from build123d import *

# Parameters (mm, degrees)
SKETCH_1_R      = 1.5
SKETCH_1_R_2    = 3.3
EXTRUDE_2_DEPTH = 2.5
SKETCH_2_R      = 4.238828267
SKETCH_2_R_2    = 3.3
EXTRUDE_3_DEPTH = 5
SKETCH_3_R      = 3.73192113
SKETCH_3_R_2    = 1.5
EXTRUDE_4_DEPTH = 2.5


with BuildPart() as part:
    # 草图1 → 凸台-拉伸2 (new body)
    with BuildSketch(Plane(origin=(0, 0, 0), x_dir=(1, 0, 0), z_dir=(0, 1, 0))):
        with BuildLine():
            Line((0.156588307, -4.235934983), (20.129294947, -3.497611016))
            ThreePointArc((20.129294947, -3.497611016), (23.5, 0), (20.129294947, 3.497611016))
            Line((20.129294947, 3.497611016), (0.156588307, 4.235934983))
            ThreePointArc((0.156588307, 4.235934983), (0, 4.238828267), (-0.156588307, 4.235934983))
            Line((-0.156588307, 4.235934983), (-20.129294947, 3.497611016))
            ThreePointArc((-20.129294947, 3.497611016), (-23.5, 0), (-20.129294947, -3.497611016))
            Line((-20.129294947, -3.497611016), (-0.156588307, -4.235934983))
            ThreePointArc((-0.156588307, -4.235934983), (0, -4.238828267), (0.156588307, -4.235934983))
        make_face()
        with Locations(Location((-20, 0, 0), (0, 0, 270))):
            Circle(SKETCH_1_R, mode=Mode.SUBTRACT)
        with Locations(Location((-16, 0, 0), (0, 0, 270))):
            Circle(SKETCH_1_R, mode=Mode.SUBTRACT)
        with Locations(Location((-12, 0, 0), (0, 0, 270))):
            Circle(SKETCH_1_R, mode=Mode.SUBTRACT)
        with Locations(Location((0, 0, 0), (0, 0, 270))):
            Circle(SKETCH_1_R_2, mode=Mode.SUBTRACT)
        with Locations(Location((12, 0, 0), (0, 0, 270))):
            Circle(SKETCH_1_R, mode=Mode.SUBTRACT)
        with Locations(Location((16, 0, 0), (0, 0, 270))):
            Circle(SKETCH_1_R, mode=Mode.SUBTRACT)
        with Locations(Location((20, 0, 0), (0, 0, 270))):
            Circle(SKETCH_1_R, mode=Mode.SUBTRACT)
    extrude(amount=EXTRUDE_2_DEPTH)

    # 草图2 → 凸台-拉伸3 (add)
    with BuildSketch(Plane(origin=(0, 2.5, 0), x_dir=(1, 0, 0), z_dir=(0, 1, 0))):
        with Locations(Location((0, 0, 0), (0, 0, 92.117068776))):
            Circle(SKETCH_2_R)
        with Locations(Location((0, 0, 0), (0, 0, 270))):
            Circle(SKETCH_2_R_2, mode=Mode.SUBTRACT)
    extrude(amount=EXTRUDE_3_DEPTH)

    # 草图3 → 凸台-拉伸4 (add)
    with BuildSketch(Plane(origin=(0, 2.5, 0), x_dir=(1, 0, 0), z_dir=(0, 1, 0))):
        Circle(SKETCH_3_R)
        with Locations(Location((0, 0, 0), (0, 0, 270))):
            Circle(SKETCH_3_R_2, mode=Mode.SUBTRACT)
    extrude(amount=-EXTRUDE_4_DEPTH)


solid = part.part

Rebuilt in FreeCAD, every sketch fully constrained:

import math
import FreeCAD as App
import Part
import Sketcher
Q = App.Units.Quantity

doc = App.newDocument("Part")
body = doc.addObject("PartDesign::Body", "Body")

# Sketch on XZ plane
sketch1 = doc.addObject("Sketcher::SketchObject", "Sketch")
body.addObject(sketch1)
sketch1.AttachmentSupport = (doc.XZ_Plane, [""])
sketch1.MapMode = "FlatFace"
sketch1.addGeometry(Part.LineSegment(App.Vector(0.16, 4.24, 0), App.Vector(20.13, 3.5, 0)), False)
sketch1.addGeometry(Part.ArcOfCircle(Part.Circle(App.Vector(20, 0, 0), App.Vector(0, 0, 1), 3.5), math.radians(-88), math.radians(88)), False)
sketch1.addGeometry(Part.LineSegment(App.Vector(20.13, -3.5, 0), App.Vector(0.16, -4.24, 0)), False)
sketch1.addGeometry(Part.ArcOfCircle(Part.Circle(App.Vector(0, 0, 0), App.Vector(0, 0, 1), 4.24), math.radians(-92.12), math.radians(-87.88)), False)
sketch1.addGeometry(Part.LineSegment(App.Vector(-0.16, -4.24, 0), App.Vector(-20.13, -3.5, 0)), False)
sketch1.addGeometry(Part.ArcOfCircle(Part.Circle(App.Vector(-20, 0, 0), App.Vector(0, 0, 1), 3.5), math.radians(92), math.radians(268)), False)
sketch1.addGeometry(Part.LineSegment(App.Vector(-20.13, 3.5, 0), App.Vector(-0.16, 4.24, 0)), False)
sketch1.addGeometry(Part.ArcOfCircle(Part.Circle(App.Vector(0, 0, 0), App.Vector(0, 0, 1), 4.24), math.radians(87.88), math.radians(92.12)), False)
sketch1.addGeometry(Part.Circle(App.Vector(-20, 0, 0), App.Vector(0, 0, 1), 1.5), False)
sketch1.addGeometry(Part.Circle(App.Vector(-16, 0, 0), App.Vector(0, 0, 1), 1.5), False)
sketch1.addGeometry(Part.Circle(App.Vector(-12, 0, 0), App.Vector(0, 0, 1), 1.5), False)
sketch1.addGeometry(Part.Circle(App.Vector(0, 0, 0), App.Vector(0, 0, 1), 3.3), False)
sketch1.addGeometry(Part.Circle(App.Vector(12, 0, 0), App.Vector(0, 0, 1), 1.5), False)
sketch1.addGeometry(Part.Circle(App.Vector(16, 0, 0), App.Vector(0, 0, 1), 1.5), False)
sketch1.addGeometry(Part.Circle(App.Vector(20, 0, 0), App.Vector(0, 0, 1), 1.5), False)
sketch1.addConstraint(Sketcher.Constraint("Tangent", 0, 2, 1, 2))
sketch1.addConstraint(Sketcher.Constraint("Tangent", 1, 1, 2, 1))
sketch1.addConstraint(Sketcher.Constraint("Tangent", 2, 2, 3, 2))
sketch1.addConstraint(Sketcher.Constraint("Tangent", 3, 1, 4, 1))
sketch1.addConstraint(Sketcher.Constraint("Tangent", 4, 2, 5, 2))
sketch1.addConstraint(Sketcher.Constraint("Tangent", 5, 1, 6, 1))
sketch1.addConstraint(Sketcher.Constraint("Tangent", 6, 2, 7, 2))
sketch1.addConstraint(Sketcher.Constraint("Tangent", 7, 1, 0, 1))
sketch1.addConstraint(Sketcher.Constraint("Coincident", 3, 3, -1, 1))
sketch1.addConstraint(Sketcher.Constraint("Coincident", 7, 3, -1, 1))
sketch1.addConstraint(Sketcher.Constraint("Coincident", 11, 3, -1, 1))
sketch1.addConstraint(Sketcher.Constraint("Coincident", 8, 3, 5, 3))
sketch1.addConstraint(Sketcher.Constraint("Coincident", 14, 3, 1, 3))
sketch1.addConstraint(Sketcher.Constraint("Equal", 1, 5))
sketch1.addConstraint(Sketcher.Constraint("Equal", 3, 7))
sketch1.addConstraint(Sketcher.Constraint("Equal", 8, 9))
sketch1.addConstraint(Sketcher.Constraint("Equal", 9, 10))
sketch1.addConstraint(Sketcher.Constraint("Equal", 10, 12))
sketch1.addConstraint(Sketcher.Constraint("Equal", 12, 13))
sketch1.addConstraint(Sketcher.Constraint("Equal", 13, 14))
sketch1.addConstraint(Sketcher.Constraint("Symmetric", 1, 3, 5, 3, -1, 1))
sketch1.addConstraint(Sketcher.Constraint("Symmetric", 10, 3, 12, 3, -1, 1))
sketch1.addConstraint(Sketcher.Constraint("Symmetric", 9, 3, 13, 3, -1, 1))
sketch1.addConstraint(Sketcher.Constraint("PointOnObject", 1, 3, -1))
sketch1.addConstraint(Sketcher.Constraint("PointOnObject", 9, 3, -1))
sketch1.addConstraint(Sketcher.Constraint("PointOnObject", 10, 3, -1))
sketch1.addConstraint(Sketcher.Constraint("Diameter", 8, Q("3 mm")))
sketch1.addConstraint(Sketcher.Constraint("Diameter", 11, Q("6.6 mm")))
sketch1.addConstraint(Sketcher.Constraint("Radius", 1, Q("3.5 mm")))
sketch1.addConstraint(Sketcher.Constraint("DistanceX", -1, 1, 1, 3, Q("20 mm")))
sketch1.addConstraint(Sketcher.Constraint("DistanceX", 9, 3, -1, 1, Q("16 mm")))
sketch1.addConstraint(Sketcher.Constraint("DistanceX", 10, 3, -1, 1, Q("12 mm")))
sketch1.addConstraint(Sketcher.Constraint("Radius", 3, Q("4.238828 mm")))
pad1 = doc.addObject("PartDesign::Pad", "Pad")
body.addObject(pad1)
pad1.Profile = sketch1
pad1.Length = 2.5
pad1.Reversed = True

# Sketch on XZ plane
sketch2 = doc.addObject("Sketcher::SketchObject", "Sketch001")
body.addObject(sketch2)
sketch2.AttachmentSupport = (doc.XZ_Plane, [""])
sketch2.MapMode = "FlatFace"
sketch2.AttachmentOffset = App.Placement(App.Vector(0, 0, -2.5), App.Rotation())
sketch2.addGeometry(Part.Circle(App.Vector(0, 0, 0), App.Vector(0, 0, 1), 4.2), False)
sketch2.addGeometry(Part.Circle(App.Vector(0, 0, 0), App.Vector(0, 0, 1), 3.3), False)
sketch2.addConstraint(Sketcher.Constraint("Coincident", 0, 3, -1, 1))
sketch2.addConstraint(Sketcher.Constraint("Coincident", 1, 3, -1, 1))
sketch2.addConstraint(Sketcher.Constraint("Diameter", 1, Q("6.6 mm")))
sketch2.addConstraint(Sketcher.Constraint("Diameter", 0, Q("8.477657 mm")))
pad2 = doc.addObject("PartDesign::Pad", "Pad001")
body.addObject(pad2)
pad2.Profile = sketch2
pad2.Length = 5
pad2.Reversed = True

# Sketch on XZ plane
sketch3 = doc.addObject("Sketcher::SketchObject", "Sketch002")
body.addObject(sketch3)
sketch3.AttachmentSupport = (doc.XZ_Plane, [""])
sketch3.MapMode = "FlatFace"
sketch3.AttachmentOffset = App.Placement(App.Vector(0, 0, -2.5), App.Rotation())
sketch3.addGeometry(Part.Circle(App.Vector(0, 0, 0), App.Vector(0, 0, 1), 3.7), False)
sketch3.addGeometry(Part.Circle(App.Vector(0, 0, 0), App.Vector(0, 0, 1), 1.5), False)
sketch3.addConstraint(Sketcher.Constraint("Coincident", 0, 3, -1, 1))
sketch3.addConstraint(Sketcher.Constraint("Coincident", 1, 3, -1, 1))
sketch3.addConstraint(Sketcher.Constraint("Diameter", 1, Q("3 mm")))
sketch3.addConstraint(Sketcher.Constraint("Diameter", 0, Q("7.463842 mm")))
pad3 = doc.addObject("PartDesign::Pad", "Pad002")
body.addObject(pad3)
pad3.Profile = sketch3
pad3.Length = 2.5

doc.recompute()
